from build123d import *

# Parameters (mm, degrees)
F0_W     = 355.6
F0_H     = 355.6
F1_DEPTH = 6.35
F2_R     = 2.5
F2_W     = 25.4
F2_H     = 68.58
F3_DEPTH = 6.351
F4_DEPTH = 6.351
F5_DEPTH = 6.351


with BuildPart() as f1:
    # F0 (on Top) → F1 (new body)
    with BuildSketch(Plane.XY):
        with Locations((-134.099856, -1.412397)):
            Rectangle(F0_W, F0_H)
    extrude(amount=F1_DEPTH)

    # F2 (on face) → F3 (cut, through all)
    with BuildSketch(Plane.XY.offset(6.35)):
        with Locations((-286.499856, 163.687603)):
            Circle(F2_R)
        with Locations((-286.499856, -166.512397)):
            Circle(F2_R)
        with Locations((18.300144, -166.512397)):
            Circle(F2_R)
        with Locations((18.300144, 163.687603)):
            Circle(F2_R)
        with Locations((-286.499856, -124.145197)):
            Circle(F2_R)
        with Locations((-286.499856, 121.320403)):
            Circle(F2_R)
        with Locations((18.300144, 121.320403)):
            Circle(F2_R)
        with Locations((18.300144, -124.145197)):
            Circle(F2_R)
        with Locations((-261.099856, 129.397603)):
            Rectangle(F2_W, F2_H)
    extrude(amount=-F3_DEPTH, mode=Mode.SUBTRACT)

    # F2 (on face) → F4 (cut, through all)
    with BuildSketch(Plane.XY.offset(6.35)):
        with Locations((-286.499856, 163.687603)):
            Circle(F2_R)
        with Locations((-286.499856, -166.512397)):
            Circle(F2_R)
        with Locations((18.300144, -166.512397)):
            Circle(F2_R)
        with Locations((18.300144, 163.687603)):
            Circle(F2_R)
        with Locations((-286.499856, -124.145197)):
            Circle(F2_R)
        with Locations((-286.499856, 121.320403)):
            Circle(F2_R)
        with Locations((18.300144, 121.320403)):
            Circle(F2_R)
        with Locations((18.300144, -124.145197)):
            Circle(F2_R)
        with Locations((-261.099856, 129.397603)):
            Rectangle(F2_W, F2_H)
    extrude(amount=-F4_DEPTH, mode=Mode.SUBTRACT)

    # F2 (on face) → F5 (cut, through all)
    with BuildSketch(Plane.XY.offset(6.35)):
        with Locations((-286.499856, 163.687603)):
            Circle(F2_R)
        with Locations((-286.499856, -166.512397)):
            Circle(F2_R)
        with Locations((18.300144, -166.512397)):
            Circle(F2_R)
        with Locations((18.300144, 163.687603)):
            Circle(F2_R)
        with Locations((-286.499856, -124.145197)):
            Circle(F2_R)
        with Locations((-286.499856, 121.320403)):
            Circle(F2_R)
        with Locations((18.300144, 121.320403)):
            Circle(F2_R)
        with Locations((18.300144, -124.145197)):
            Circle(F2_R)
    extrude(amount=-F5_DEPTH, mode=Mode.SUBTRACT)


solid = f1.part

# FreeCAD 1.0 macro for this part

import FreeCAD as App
import Part
import Sketcher
from FreeCAD import Vector
Q = App.Units.Quantity


def add_polygon(sketch, points):
    """Adds a closed chain of lines whose ends are joined by coincident constraints."""
    first, n = sketch.GeometryCount, len(points)
    for a, b in zip(points, points[1:] + points[:1]):
        sketch.addGeometry(Part.LineSegment(App.Vector(*a, 0), App.Vector(*b, 0)), False)
    for i in range(n):
        sketch.addConstraint(Sketcher.Constraint("Coincident", first + i, 2, first + (i + 1) % n, 1))

doc = App.newDocument("Part")
body = doc.addObject("PartDesign::Body", "Body")

sketch1 = body.newObject("Sketcher::SketchObject", "Sketch")
sketch1.AttachmentSupport = (doc.getObject("XY_Plane"), [""])
sketch1.MapMode = "FlatFace"
add_polygon(sketch1, [(-312, 176), (-312, -179), (44, -179), (44, 176)])
sketch1.addConstraint(Sketcher.Constraint("Vertical", 0))
sketch1.addConstraint(Sketcher.Constraint("Horizontal", 1))
sketch1.addConstraint(Sketcher.Constraint("Vertical", 2))
sketch1.addConstraint(Sketcher.Constraint("Horizontal", 3))
sketch1.addConstraint(Sketcher.Constraint("Equal", 3, 0))
sketch1.addConstraint(Sketcher.Constraint("DistanceX", 1, 1, 1, 2, Q("14 in")))
sketch1.addConstraint(Sketcher.Constraint("DistanceX", 0, 2, -1, 1, Q("311.899856 mm")))
sketch1.addConstraint(Sketcher.Constraint("DistanceY", 0, 2, -1, 1, Q("179.212397 mm")))
pad1 = body.newObject("PartDesign::Pad", "Pad")
pad1.Profile = sketch1
pad1.Length = Q("0.25 in")

sketch2 = body.newObject("Sketcher::SketchObject", "Sketch001")
sketch2.AttachmentSupport = (doc.getObject("XY_Plane"), [""])
sketch2.MapMode = "FlatFace"
sketch2.AttachmentOffset = App.Placement(Vector(0, 0, 0.25 * 25.4), App.Rotation())
sketch2.addGeometry(Part.Circle(Vector(-286.5, 163.7, 0), Vector(0, 0, 1), 2.5), False)
sketch2.addGeometry(Part.Circle(Vector(-286.5, -166.5, 0), Vector(0, 0, 1), 2.5), False)
sketch2.addGeometry(Part.Circle(Vector(18.3, -166.5, 0), Vector(0, 0, 1), 2.5), False)
sketch2.addGeometry(Part.Circle(Vector(18.3, 163.7, 0), Vector(0, 0, 1), 2.5), False)
sketch2.addGeometry(Part.Circle(Vector(-286.5, -124.1, 0), Vector(0, 0, 1), 2.5), False)
sketch2.addGeometry(Part.Circle(Vector(-286.5, 121.3, 0), Vector(0, 0, 1), 2.5), False)
sketch2.addGeometry(Part.Circle(Vector(18.3, 121.3, 0), Vector(0, 0, 1), 2.5), False)
sketch2.addGeometry(Part.Circle(Vector(18.3, -124.1, 0), Vector(0, 0, 1), 2.5), False)
add_polygon(sketch2, [(-273.8, 163.7), (-273.8, 95.1), (-248.4, 95.1), (-248.4, 163.7)])
sketch2.addConstraint(Sketcher.Constraint("Vertical", 8))
sketch2.addConstraint(Sketcher.Constraint("Horizontal", 9))
sketch2.addConstraint(Sketcher.Constraint("Vertical", 10))
sketch2.addConstraint(Sketcher.Constraint("Horizontal", 11))
sketch2.addConstraint(Sketcher.Constraint("Equal", 0, 1))
sketch2.addConstraint(Sketcher.Constraint("Equal", 1, 2))
sketch2.addConstraint(Sketcher.Constraint("Equal", 2, 3))
sketch2.addConstraint(Sketcher.Constraint("Equal", 3, 4))
sketch2.addConstraint(Sketcher.Constraint("Equal", 4, 5))
sketch2.addConstraint(Sketcher.Constraint("Equal", 5, 6))
sketch2.addConstraint(Sketcher.Constraint("Equal", 6, 7))
sketch2.addConstraint(Sketcher.Constraint("Horizontal", 1, 3, 2, 3))
sketch2.addConstraint(Sketcher.Constraint("Horizontal", 0, 3, 3, 3))
sketch2.addConstraint(Sketcher.Constraint("Horizontal", 5, 3, 6, 3))
sketch2.addConstraint(Sketcher.Constraint("Horizontal", 4, 3, 7, 3))
sketch2.addConstraint(Sketcher.Constraint("Horizontal", 3, 3, 10, 2))
sketch2.addConstraint(Sketcher.Constraint("Vertical", 0, 3, 1, 3))
sketch2.addConstraint(Sketcher.Constraint("Vertical", 2, 3, 3, 3))
sketch2.addConstraint(Sketcher.Constraint("Vertical", 1, 3, 4, 3))
sketch2.addConstraint(Sketcher.Constraint("Vertical", 4, 3, 5, 3))
sketch2.addConstraint(Sketcher.Constraint("Vertical", 3, 3, 6, 3))
sketch2.addConstraint(Sketcher.Constraint("Vertical", 6, 3, 7, 3))
sketch2.addConstraint(Sketcher.Constraint("DistanceX", 9, 1, 9, 2, Q("1 in")))
sketch2.addConstraint(Sketcher.Constraint("DistanceY", 8, 2, 8, 1, Q("2.7 in")))
sketch2.addConstraint(Sketcher.Constraint("DistanceY", 1, 3, 0, 3, Q("13 in")))
sketch2.addConstraint(Sketcher.Constraint("DistanceX", 1, 3, 2, 3, Q("12 in")))
sketch2.addConstraint(Sketcher.Constraint("DistanceX", 5, 3, 8, 2, Q("0.5 in")))
sketch2.addConstraint(Sketcher.Constraint("Diameter", 0, Q("5 mm")))
sketch2.addConstraint(Sketcher.Constraint("DistanceY", 1, 3, 4, 3, Q("1.668 in")))
sketch2.addConstraint(Sketcher.Constraint("DistanceY", 5, 3, 0, 3, Q("1.668 in")))
sketch2.addConstraint(Sketcher.Constraint("DistanceX", 0, 3, -1, 1, Q("286.499856 mm")))
sketch2.addConstraint(Sketcher.Constraint("DistanceY", -1, 1, 0, 3, Q("163.687603 mm")))
pocket1 = body.newObject("PartDesign::Pocket", "Pocket")
pocket1.Profile = sketch2
pocket1.Type = "ThroughAll"

sketch3 = body.newObject("Sketcher::SketchObject", "Sketch002")
sketch3.AttachmentSupport = (doc.getObject("XY_Plane"), [""])
sketch3.MapMode = "FlatFace"
sketch3.AttachmentOffset = App.Placement(Vector(0, 0, 0.25 * 25.4), App.Rotation())
sketch3.addGeometry(Part.Circle(Vector(-286.5, 163.7, 0), Vector(0, 0, 1), 2.5), False)
sketch3.addGeometry(Part.Circle(Vector(-286.5, -166.5, 0), Vector(0, 0, 1), 2.5), False)
sketch3.addGeometry(Part.Circle(Vector(18.3, -166.5, 0), Vector(0, 0, 1), 2.5), False)
sketch3.addGeometry(Part.Circle(Vector(18.3, 163.7, 0), Vector(0, 0, 1), 2.5), False)
sketch3.addGeometry(Part.Circle(Vector(-286.5, -124.1, 0), Vector(0, 0, 1), 2.5), False)
sketch3.addGeometry(Part.Circle(Vector(-286.5, 121.3, 0), Vector(0, 0, 1), 2.5), False)
sketch3.addGeometry(Part.Circle(Vector(18.3, 121.3, 0), Vector(0, 0, 1), 2.5), False)
sketch3.addGeometry(Part.Circle(Vector(18.3, -124.1, 0), Vector(0, 0, 1), 2.5), False)
add_polygon(sketch3, [(-273.8, 163.7), (-273.8, 95.1), (-248.4, 95.1), (-248.4, 163.7)])
sketch3.addConstraint(Sketcher.Constraint("Vertical", 8))
sketch3.addConstraint(Sketcher.Constraint("Horizontal", 9))
sketch3.addConstraint(Sketcher.Constraint("Vertical", 10))
sketch3.addConstraint(Sketcher.Constraint("Horizontal", 11))
sketch3.addConstraint(Sketcher.Constraint("Equal", 0, 1))
sketch3.addConstraint(Sketcher.Constraint("Equal", 1, 2))
sketch3.addConstraint(Sketcher.Constraint("Equal", 2, 3))
sketch3.addConstraint(Sketcher.Constraint("Equal", 3, 4))
sketch3.addConstraint(Sketcher.Constraint("Equal", 4, 5))
sketch3.addConstraint(Sketcher.Constraint("Equal", 5, 6))
sketch3.addConstraint(Sketcher.Constraint("Equal", 6, 7))
sketch3.addConstraint(Sketcher.Constraint("Horizontal", 1, 3, 2, 3))
sketch3.addConstraint(Sketcher.Constraint("Horizontal", 0, 3, 3, 3))
sketch3.addConstraint(Sketcher.Constraint("Horizontal", 5, 3, 6, 3))
sketch3.addConstraint(Sketcher.Constraint("Horizontal", 4, 3, 7, 3))
sketch3.addConstraint(Sketcher.Constraint("Horizontal", 3, 3, 10, 2))
sketch3.addConstraint(Sketcher.Constraint("Vertical", 0, 3, 1, 3))
sketch3.addConstraint(Sketcher.Constraint("Vertical", 2, 3, 3, 3))
sketch3.addConstraint(Sketcher.Constraint("Vertical", 1, 3, 4, 3))
sketch3.addConstraint(Sketcher.Constraint("Vertical", 4, 3, 5, 3))
sketch3.addConstraint(Sketcher.Constraint("Vertical", 3, 3, 6, 3))
sketch3.addConstraint(Sketcher.Constraint("Vertical", 6, 3, 7, 3))
sketch3.addConstraint(Sketcher.Constraint("DistanceX", 9, 1, 9, 2, Q("1 in")))
sketch3.addConstraint(Sketcher.Constraint("DistanceY", 8, 2, 8, 1, Q("2.7 in")))
sketch3.addConstraint(Sketcher.Constraint("DistanceY", 1, 3, 0, 3, Q("13 in")))
sketch3.addConstraint(Sketcher.Constraint("DistanceX", 1, 3, 2, 3, Q("12 in")))
sketch3.addConstraint(Sketcher.Constraint("DistanceX", 5, 3, 8, 2, Q("0.5 in")))
sketch3.addConstraint(Sketcher.Constraint("Diameter", 0, Q("5 mm")))
sketch3.addConstraint(Sketcher.Constraint("DistanceY", 1, 3, 4, 3, Q("1.668 in")))
sketch3.addConstraint(Sketcher.Constraint("DistanceY", 5, 3, 0, 3, Q("1.668 in")))
sketch3.addConstraint(Sketcher.Constraint("DistanceX", 0, 3, -1, 1, Q("286.499856 mm")))
sketch3.addConstraint(Sketcher.Constraint("DistanceY", -1, 1, 0, 3, Q("163.687603 mm")))
pocket2 = body.newObject("PartDesign::Pocket", "Pocket001")
pocket2.Profile = sketch3
pocket2.Type = "ThroughAll"

sketch4 = body.newObject("Sketcher::SketchObject", "Sketch003")
sketch4.AttachmentSupport = (doc.getObject("XY_Plane"), [""])
sketch4.MapMode = "FlatFace"
sketch4.AttachmentOffset = App.Placement(Vector(0, 0, 0.25 * 25.4), App.Rotation())
sketch4.addGeometry(Part.Circle(Vector(-286.5, 163.7, 0), Vector(0, 0, 1), 2.5), False)
sketch4.addGeometry(Part.Circle(Vector(-286.5, -166.5, 0), Vector(0, 0, 1), 2.5), False)
sketch4.addGeometry(Part.Circle(Vector(18.3, -166.5, 0), Vector(0, 0, 1), 2.5), False)
sketch4.addGeometry(Part.Circle(Vector(18.3, 163.7, 0), Vector(0, 0, 1), 2.5), False)
sketch4.addGeometry(Part.Circle(Vector(-286.5, -124.1, 0), Vector(0, 0, 1), 2.5), False)
sketch4.addGeometry(Part.Circle(Vector(-286.5, 121.3, 0), Vector(0, 0, 1), 2.5), False)
sketch4.addGeometry(Part.Circle(Vector(18.3, 121.3, 0), Vector(0, 0, 1), 2.5), False)
sketch4.addGeometry(Part.Circle(Vector(18.3, -124.1, 0), Vector(0, 0, 1), 2.5), False)
sketch4.addConstraint(Sketcher.Constraint("Equal", 0, 1))
sketch4.addConstraint(Sketcher.Constraint("Equal", 1, 2))
sketch4.addConstraint(Sketcher.Constraint("Equal", 2, 3))
sketch4.addConstraint(Sketcher.Constraint("Equal", 3, 4))
sketch4.addConstraint(Sketcher.Constraint("Equal", 4, 5))
sketch4.addConstraint(Sketcher.Constraint("Equal", 5, 6))
sketch4.addConstraint(Sketcher.Constraint("Equal", 6, 7))
sketch4.addConstraint(Sketcher.Constraint("Horizontal", 1, 3, 2, 3))
sketch4.addConstraint(Sketcher.Constraint("Horizontal", 0, 3, 3, 3))
sketch4.addConstraint(Sketcher.Constraint("Horizontal", 5, 3, 6, 3))
sketch4.addConstraint(Sketcher.Constraint("Horizontal", 4, 3, 7, 3))
sketch4.addConstraint(Sketcher.Constraint("Vertical", 0, 3, 1, 3))
sketch4.addConstraint(Sketcher.Constraint("Vertical", 2, 3, 3, 3))
sketch4.addConstraint(Sketcher.Constraint("Vertical", 1, 3, 4, 3))
sketch4.addConstraint(Sketcher.Constraint("Vertical", 4, 3, 5, 3))
sketch4.addConstraint(Sketcher.Constraint("Vertical", 3, 3, 6, 3))
sketch4.addConstraint(Sketcher.Constraint("Vertical", 6, 3, 7, 3))
sketch4.addConstraint(Sketcher.Constraint("DistanceY", 1, 3, 0, 3, Q("13 in")))
sketch4.addConstraint(Sketcher.Constraint("DistanceX", 1, 3, 2, 3, Q("12 in")))
sketch4.addConstraint(Sketcher.Constraint("Diameter", 0, Q("5 mm")))
sketch4.addConstraint(Sketcher.Constraint("DistanceY", 1, 3, 4, 3, Q("1.668 in")))
sketch4.addConstraint(Sketcher.Constraint("DistanceY", 5, 3, 0, 3, Q("1.668 in")))
sketch4.addConstraint(Sketcher.Constraint("DistanceX", 0, 3, -1, 1, Q("286.499856 mm")))
sketch4.addConstraint(Sketcher.Constraint("DistanceY", -1, 1, 0, 3, Q("163.687603 mm")))
pocket3 = body.newObject("PartDesign::Pocket", "Pocket002")
pocket3.Profile = sketch4
pocket3.Type = "ThroughAll"

doc.recompute()
